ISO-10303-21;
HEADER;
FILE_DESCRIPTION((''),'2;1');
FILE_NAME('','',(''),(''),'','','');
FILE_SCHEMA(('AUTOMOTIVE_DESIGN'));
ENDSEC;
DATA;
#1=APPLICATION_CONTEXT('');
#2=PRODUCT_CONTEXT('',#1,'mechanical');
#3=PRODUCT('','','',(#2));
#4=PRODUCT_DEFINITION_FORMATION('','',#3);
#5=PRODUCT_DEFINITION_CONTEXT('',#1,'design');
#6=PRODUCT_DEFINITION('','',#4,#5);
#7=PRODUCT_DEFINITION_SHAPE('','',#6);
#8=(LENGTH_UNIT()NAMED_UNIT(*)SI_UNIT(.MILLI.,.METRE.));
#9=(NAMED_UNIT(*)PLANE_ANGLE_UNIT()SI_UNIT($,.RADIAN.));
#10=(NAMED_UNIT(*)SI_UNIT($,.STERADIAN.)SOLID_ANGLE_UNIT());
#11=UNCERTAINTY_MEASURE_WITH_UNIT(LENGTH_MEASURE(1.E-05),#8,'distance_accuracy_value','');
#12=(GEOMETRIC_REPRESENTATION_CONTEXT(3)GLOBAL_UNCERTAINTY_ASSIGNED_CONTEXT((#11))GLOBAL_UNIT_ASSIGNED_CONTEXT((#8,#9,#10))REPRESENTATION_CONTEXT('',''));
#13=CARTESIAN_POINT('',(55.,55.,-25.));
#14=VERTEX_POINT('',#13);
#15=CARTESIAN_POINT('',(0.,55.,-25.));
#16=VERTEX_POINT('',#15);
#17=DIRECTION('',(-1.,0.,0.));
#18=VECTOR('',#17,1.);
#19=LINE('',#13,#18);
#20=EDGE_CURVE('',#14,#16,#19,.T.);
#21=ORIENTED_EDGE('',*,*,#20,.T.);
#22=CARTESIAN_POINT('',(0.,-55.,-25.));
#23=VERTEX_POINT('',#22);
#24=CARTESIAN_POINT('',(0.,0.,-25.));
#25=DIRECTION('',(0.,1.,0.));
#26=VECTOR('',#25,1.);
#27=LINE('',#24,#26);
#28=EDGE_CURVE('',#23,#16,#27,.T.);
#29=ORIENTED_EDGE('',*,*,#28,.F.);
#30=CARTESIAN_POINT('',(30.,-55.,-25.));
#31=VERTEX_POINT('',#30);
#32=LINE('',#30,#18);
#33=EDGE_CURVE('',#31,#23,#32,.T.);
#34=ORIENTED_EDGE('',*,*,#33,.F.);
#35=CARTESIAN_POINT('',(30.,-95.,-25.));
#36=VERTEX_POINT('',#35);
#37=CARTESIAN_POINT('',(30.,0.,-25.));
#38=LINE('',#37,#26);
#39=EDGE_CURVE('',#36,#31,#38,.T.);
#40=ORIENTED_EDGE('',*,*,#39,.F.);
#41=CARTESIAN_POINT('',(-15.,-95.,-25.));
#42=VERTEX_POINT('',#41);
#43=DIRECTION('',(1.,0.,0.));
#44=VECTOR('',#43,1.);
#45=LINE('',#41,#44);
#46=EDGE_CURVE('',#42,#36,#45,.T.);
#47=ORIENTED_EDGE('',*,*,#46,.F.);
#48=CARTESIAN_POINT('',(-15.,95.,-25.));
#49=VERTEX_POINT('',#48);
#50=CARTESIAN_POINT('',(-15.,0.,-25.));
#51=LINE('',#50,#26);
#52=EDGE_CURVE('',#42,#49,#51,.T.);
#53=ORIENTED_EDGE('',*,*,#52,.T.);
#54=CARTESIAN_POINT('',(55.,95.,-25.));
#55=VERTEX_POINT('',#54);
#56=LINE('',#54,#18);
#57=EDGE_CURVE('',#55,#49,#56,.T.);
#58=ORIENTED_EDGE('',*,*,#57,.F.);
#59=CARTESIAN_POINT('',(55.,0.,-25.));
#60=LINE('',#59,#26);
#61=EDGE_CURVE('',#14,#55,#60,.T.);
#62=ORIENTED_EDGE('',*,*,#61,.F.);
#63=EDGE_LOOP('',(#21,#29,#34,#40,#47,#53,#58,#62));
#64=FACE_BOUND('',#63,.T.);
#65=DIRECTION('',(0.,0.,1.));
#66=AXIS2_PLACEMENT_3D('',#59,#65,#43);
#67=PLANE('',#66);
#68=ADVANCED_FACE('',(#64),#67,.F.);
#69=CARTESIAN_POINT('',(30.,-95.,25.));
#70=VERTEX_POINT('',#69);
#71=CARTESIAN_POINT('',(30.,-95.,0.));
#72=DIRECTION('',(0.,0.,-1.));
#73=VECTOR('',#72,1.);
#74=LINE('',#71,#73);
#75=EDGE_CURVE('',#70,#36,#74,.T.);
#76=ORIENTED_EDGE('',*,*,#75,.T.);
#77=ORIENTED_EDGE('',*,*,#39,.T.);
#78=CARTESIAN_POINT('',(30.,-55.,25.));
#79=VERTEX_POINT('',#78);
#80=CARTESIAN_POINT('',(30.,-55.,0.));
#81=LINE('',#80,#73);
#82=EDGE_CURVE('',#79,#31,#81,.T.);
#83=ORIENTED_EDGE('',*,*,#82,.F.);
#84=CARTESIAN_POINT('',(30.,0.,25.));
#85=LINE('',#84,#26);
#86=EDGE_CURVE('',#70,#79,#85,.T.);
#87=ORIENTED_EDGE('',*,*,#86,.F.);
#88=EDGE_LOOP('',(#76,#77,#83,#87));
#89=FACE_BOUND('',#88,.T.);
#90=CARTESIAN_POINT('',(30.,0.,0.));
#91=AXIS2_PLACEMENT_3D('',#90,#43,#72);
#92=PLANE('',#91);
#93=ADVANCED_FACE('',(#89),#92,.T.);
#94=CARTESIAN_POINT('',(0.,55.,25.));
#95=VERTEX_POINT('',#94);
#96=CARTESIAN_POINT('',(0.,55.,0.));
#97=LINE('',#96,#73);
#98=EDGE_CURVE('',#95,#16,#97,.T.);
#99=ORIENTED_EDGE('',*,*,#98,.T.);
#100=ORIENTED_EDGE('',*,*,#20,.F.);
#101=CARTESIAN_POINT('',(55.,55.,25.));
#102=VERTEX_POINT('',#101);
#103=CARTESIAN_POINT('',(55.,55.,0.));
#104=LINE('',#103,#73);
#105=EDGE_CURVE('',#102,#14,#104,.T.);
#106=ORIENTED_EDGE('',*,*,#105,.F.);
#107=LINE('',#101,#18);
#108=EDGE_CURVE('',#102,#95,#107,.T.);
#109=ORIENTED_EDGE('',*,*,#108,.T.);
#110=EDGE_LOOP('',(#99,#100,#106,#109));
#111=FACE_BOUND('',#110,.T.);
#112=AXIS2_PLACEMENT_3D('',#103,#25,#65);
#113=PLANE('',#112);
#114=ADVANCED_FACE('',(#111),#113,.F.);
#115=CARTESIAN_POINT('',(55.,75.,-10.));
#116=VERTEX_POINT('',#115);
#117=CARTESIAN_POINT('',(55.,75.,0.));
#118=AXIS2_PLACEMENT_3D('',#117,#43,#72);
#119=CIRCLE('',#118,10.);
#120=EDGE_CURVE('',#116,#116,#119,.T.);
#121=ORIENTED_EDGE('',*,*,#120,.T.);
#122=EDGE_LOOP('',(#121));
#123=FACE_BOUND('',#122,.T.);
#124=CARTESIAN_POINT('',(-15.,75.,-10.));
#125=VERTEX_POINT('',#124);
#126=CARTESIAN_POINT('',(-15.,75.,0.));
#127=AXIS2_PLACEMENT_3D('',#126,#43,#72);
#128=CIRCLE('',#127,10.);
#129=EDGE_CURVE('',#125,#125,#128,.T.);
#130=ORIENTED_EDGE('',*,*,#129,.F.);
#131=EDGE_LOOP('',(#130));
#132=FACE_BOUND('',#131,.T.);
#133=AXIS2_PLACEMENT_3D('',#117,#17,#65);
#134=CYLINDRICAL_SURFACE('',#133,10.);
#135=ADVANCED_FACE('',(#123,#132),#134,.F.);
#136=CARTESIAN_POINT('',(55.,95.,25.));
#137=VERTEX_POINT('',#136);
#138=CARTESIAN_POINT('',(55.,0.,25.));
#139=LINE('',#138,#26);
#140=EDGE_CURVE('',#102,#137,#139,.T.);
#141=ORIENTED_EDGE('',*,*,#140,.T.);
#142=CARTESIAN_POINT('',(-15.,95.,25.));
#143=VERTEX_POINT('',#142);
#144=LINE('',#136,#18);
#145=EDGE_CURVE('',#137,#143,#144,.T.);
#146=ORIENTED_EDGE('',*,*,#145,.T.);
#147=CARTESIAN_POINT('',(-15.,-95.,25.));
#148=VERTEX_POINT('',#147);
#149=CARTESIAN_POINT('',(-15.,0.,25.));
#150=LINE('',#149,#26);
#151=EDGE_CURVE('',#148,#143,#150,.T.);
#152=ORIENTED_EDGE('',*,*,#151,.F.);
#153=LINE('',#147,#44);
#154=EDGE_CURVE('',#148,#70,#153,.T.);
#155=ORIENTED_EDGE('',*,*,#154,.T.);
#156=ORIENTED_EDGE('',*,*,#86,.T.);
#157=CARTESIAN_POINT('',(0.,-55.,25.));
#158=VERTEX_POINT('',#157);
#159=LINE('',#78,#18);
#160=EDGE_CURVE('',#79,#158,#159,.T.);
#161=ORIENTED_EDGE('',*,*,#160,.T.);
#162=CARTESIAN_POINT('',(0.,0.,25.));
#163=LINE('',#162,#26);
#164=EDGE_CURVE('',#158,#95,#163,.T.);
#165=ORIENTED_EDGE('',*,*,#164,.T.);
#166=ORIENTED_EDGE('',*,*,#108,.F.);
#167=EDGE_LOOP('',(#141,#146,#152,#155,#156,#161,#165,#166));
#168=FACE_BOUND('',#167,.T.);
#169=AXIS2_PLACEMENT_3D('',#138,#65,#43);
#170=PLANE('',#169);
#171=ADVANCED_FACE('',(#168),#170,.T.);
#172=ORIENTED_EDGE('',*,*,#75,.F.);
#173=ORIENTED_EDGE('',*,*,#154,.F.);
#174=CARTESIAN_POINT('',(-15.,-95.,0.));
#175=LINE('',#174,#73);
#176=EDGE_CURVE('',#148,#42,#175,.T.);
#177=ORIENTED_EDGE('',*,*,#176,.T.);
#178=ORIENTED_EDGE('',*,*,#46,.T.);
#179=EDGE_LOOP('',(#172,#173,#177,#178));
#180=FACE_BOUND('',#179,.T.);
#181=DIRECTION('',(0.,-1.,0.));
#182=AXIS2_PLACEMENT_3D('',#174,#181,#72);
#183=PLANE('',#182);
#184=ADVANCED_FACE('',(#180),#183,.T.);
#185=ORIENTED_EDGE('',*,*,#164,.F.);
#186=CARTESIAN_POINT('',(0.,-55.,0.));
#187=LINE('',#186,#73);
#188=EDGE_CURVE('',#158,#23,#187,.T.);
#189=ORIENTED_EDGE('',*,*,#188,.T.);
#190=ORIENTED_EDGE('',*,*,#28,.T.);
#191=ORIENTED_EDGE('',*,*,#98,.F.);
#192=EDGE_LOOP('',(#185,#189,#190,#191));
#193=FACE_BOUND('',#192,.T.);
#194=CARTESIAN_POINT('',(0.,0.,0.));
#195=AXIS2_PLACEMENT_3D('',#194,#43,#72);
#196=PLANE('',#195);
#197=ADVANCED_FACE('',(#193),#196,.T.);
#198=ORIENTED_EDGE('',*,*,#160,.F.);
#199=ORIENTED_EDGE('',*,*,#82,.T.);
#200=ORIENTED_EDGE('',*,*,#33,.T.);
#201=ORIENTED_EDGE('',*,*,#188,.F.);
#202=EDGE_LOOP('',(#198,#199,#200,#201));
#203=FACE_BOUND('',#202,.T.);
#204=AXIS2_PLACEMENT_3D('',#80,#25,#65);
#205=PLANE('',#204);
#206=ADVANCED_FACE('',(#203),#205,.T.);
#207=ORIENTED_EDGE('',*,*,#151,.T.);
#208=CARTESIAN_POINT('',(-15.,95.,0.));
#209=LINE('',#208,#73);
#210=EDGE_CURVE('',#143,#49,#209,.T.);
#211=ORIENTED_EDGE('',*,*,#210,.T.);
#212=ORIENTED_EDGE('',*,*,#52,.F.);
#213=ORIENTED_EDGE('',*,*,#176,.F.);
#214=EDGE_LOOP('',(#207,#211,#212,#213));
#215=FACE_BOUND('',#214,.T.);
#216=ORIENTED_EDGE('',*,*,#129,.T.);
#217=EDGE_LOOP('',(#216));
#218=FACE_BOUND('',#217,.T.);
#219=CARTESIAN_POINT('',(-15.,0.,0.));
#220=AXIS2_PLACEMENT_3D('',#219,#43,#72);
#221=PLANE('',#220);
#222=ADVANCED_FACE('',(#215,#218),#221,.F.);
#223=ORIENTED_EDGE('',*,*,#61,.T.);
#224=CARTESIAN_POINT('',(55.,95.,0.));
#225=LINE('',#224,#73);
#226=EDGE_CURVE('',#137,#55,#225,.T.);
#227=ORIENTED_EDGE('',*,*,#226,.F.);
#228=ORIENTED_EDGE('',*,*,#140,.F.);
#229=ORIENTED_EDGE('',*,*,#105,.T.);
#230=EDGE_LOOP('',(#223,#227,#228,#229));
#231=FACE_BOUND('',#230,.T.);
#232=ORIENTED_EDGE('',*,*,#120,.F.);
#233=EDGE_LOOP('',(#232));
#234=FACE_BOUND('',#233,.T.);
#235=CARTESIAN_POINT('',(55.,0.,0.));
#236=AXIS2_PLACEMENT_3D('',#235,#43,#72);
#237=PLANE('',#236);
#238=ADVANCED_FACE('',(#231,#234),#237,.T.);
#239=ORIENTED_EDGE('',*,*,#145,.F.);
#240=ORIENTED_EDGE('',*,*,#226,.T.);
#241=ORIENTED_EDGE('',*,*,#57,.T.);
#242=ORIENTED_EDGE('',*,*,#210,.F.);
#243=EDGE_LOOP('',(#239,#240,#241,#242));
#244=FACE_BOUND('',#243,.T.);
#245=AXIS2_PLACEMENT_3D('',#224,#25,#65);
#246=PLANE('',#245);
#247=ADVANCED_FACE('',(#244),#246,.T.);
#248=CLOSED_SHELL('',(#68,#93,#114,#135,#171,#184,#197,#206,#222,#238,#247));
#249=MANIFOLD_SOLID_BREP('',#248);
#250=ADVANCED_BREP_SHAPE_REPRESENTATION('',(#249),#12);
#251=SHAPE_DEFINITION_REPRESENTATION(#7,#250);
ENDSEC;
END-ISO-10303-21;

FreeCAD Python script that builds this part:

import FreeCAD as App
import Part
import Sketcher


def add_polygon(sketch, points):
    """Adds a closed chain of lines whose ends are joined by coincident constraints."""
    first, n = sketch.GeometryCount, len(points)
    for a, b in zip(points, points[1:] + points[:1]):
        sketch.addGeometry(Part.LineSegment(App.Vector(*a, 0), App.Vector(*b, 0)), False)
    for i in range(n):
        sketch.addConstraint(Sketcher.Constraint("Coincident", first + i, 2, first + (i + 1) % n, 1))

doc = App.newDocument("Part")
body = doc.addObject("PartDesign::Body", "Body")

# Sketch on YZ plane
sketch1 = doc.addObject("Sketcher::SketchObject", "Sketch")
body.addObject(sketch1)
sketch1.AttachmentSupport = (doc.YZ_Plane, [""])
sketch1.MapMode = "FlatFace"
add_polygon(sketch1, [(95, 25), (55, 25), (55, -25), (95, -25)])  # lines 0-3
sketch1.addGeometry(Part.Circle(App.Vector(75, 0, 0), App.Vector(0, 0, 1), 10), False)  # 4
sketch1.addConstraint([
    Sketcher.Constraint("Horizontal", 0),
    Sketcher.Constraint("Vertical", 1),
    Sketcher.Constraint("Horizontal", 2),
    Sketcher.Constraint("Vertical", 3),
    Sketcher.Constraint("PointOnObject", 4, 3, -1),
    Sketcher.Constraint("Diameter", 4, 20.0),
    Sketcher.Constraint("DistanceX", 0, 2, 0, 1, 40.0),
    Sketcher.Constraint("DistanceY", 1, 2, 1, 1, 50.0),
    Sketcher.Constraint("DistanceX", -1, 1, 4, 3, 75.0),
    Sketcher.Constraint("DistanceX", -1, 1, 0, 2, 55.0),
    Sketcher.Constraint("DistanceY", -1, 1, 0, 2, 25.0),
])
pad1 = doc.addObject("PartDesign::Pad", "Pad")
body.addObject(pad1)
pad1.Profile = sketch1
pad1.Length = 55

# Sketch on YZ plane
sketch2 = doc.addObject("Sketcher::SketchObject", "Sketch001")
body.addObject(sketch2)
sketch2.AttachmentSupport = (doc.YZ_Plane, [""])
sketch2.MapMode = "FlatFace"
sketch2.AttachmentOffset = App.Placement(App.Vector(0, 0, -15), App.Rotation())
add_polygon(sketch2, [(95, 25), (-95, 25), (-95, -25), (95, -25)])  # lines 0-3
sketch2.addGeometry(Part.Circle(App.Vector(75, 0, 0), App.Vector(0, 0, 1), 10), False)  # 4
sketch2.addConstraint([
    Sketcher.Constraint("Horizontal", 0),
    Sketcher.Constraint("Vertical", 1),
    Sketcher.Constraint("Horizontal", 2),
    Sketcher.Constraint("Vertical", 3),
    Sketcher.Constraint("Symmetric", 0, 2, 2, 2, -1, 1),
    Sketcher.Constraint("PointOnObject", 4, 3, -1),
    Sketcher.Constraint("Diameter", 4, 20.0),
    Sketcher.Constraint("DistanceX", 0, 2, 0, 1, 190.0),
    Sketcher.Constraint("DistanceY", 1, 2, 1, 1, 50.0),
    Sketcher.Constraint("DistanceX", -1, 1, 4, 3, 75.0),
])
pad2 = doc.addObject("PartDesign::Pad", "Pad001")
body.addObject(pad2)
pad2.Profile = sketch2
pad2.Length = 15

# Sketch on YZ plane
sketch3 = doc.addObject("Sketcher::SketchObject", "Sketch002")
body.addObject(sketch3)
sketch3.AttachmentSupport = (doc.YZ_Plane, [""])
sketch3.MapMode = "FlatFace"
add_polygon(sketch3, [(-55, 25), (-95, 25), (-95, -25), (-55, -25)])  # lines 0-3
sketch3.addConstraint([
    Sketcher.Constraint("Horizontal", 0),
    Sketcher.Constraint("Vertical", 1),
    Sketcher.Constraint("Horizontal", 2),
    Sketcher.Constraint("Vertical", 3),
    Sketcher.Constraint("DistanceX", 0, 2, 0, 1, 40.0),
    Sketcher.Constraint("DistanceY", 1, 2, 1, 1, 50.0),
    Sketcher.Constraint("DistanceX", 0, 2, -1, 1, 95.0),
    Sketcher.Constraint("DistanceY", -1, 1, 0, 2, 25.0),
])
pad3 = doc.addObject("PartDesign::Pad", "Pad002")
body.addObject(pad3)
pad3.Profile = sketch3
pad3.Length = 30

doc.recompute()
